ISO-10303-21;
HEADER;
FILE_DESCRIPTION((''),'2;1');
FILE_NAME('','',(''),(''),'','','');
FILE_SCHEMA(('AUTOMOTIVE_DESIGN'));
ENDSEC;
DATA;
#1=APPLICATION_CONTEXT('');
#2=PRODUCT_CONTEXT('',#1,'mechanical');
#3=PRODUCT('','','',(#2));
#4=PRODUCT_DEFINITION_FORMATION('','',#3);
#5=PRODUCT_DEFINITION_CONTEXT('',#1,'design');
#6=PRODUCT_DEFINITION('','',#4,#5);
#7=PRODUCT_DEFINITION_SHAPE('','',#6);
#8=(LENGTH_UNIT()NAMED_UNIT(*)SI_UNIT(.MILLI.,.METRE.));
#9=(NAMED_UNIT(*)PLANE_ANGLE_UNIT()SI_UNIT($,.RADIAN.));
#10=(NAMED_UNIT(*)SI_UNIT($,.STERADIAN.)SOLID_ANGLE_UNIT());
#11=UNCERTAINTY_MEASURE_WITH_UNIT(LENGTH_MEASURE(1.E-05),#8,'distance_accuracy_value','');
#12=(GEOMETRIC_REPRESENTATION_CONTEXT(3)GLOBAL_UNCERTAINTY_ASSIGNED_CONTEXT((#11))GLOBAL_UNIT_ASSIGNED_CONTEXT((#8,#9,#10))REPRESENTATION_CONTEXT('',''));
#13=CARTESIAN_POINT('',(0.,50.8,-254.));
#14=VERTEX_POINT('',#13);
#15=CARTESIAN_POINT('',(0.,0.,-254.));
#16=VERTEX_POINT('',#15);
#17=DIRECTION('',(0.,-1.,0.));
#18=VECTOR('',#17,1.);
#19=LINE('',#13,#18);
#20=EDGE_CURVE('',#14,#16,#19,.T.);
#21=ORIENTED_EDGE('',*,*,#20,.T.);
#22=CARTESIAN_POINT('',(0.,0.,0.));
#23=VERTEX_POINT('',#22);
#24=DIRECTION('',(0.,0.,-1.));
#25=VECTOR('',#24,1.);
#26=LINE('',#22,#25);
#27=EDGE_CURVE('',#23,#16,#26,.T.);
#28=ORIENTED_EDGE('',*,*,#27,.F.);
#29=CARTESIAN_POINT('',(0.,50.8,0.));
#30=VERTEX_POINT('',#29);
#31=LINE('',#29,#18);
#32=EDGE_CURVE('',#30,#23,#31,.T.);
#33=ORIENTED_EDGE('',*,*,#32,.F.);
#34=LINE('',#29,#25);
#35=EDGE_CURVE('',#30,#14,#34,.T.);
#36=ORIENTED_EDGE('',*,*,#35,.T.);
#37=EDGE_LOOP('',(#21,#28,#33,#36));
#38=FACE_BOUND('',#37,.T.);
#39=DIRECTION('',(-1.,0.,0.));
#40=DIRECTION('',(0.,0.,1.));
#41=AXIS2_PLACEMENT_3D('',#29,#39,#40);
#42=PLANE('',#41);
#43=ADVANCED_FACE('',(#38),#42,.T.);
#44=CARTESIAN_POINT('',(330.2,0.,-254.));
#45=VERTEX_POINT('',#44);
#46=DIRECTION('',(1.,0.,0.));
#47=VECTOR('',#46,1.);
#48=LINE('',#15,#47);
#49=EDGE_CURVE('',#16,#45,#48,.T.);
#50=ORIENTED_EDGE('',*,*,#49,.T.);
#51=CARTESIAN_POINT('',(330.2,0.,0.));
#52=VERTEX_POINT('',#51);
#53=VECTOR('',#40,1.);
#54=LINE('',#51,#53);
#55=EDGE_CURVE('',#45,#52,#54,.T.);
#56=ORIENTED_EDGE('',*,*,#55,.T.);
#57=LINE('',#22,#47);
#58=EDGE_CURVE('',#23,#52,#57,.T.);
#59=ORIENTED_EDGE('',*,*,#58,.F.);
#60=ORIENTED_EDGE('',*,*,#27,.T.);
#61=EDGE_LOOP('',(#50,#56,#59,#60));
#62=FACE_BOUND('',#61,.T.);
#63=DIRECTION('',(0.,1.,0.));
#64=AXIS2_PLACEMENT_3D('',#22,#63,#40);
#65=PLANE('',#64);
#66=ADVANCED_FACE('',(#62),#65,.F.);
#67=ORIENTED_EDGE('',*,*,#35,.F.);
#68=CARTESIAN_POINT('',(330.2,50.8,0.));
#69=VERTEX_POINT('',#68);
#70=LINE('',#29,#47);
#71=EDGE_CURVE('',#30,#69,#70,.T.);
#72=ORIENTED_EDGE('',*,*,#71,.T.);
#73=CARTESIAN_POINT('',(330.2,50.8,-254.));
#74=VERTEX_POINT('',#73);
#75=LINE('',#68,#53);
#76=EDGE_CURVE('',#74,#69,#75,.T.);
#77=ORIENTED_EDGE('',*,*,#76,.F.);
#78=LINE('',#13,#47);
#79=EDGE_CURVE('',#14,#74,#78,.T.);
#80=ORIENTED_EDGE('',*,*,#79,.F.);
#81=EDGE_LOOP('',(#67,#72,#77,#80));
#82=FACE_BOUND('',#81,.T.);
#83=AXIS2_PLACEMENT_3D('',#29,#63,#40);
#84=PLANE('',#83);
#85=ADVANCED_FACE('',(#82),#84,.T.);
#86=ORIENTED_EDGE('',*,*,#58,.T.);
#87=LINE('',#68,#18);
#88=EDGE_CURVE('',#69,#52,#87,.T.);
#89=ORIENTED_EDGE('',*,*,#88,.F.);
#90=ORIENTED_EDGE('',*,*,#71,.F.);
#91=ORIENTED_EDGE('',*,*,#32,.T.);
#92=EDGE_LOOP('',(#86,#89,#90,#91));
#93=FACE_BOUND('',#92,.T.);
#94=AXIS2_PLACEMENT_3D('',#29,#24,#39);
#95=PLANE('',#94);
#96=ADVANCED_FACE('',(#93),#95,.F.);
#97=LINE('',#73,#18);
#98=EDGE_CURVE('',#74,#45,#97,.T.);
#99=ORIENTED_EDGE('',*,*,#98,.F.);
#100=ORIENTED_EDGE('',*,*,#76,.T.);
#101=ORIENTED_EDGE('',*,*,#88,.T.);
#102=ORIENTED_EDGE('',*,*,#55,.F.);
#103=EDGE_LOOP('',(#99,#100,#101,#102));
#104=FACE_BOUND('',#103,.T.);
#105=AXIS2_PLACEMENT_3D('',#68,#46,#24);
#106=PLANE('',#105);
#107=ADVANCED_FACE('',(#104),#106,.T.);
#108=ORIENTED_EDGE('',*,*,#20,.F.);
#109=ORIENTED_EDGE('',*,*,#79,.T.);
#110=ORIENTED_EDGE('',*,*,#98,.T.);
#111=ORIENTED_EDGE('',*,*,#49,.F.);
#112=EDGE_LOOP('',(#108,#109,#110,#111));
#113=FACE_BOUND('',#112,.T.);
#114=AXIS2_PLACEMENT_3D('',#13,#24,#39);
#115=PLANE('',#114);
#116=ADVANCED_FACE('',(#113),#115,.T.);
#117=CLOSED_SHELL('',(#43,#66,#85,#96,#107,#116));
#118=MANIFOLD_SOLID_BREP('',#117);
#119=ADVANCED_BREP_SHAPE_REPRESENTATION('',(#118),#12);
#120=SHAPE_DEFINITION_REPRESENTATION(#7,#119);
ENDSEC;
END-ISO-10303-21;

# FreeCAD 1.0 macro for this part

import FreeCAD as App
import Part
import Sketcher
from FreeCAD import Vector
Q = App.Units.Quantity

doc = App.newDocument("Part")
body = doc.addObject("PartDesign::Body", "Body")

sketch1 = body.newObject("Sketcher::SketchObject", "Sketch")
sketch1.AttachmentSupport = (doc.getObject("XZ_Plane"), [""])
sketch1.MapMode = "FlatFace"
sketch1.addGeometry([
    Part.LineSegment(Vector(0, 0, 0), Vector(330, 0, 0)),
    Part.LineSegment(Vector(330, 0, 0), Vector(330, -254, 0)),
    Part.LineSegment(Vector(330, -254, 0), Vector(0, -254, 0)),
    Part.LineSegment(Vector(0, -254, 0), Vector(0, 0, 0)),
], False)
sketch1.addConstraint([
    Sketcher.Constraint("Coincident", 0, 2, 1, 1),
    Sketcher.Constraint("Coincident", 1, 2, 2, 1),
    Sketcher.Constraint("Coincident", 2, 2, 3, 1),
    Sketcher.Constraint("Coincident", 3, 2, 0, 1),
    Sketcher.Constraint("Horizontal", 0),
    Sketcher.Constraint("Vertical", 1),
    Sketcher.Constraint("Horizontal", 2),
    Sketcher.Constraint("Vertical", 3),
    Sketcher.Constraint("Coincident", 3, 2, -1, 1),
    Sketcher.Constraint("DistanceX", 0, 1, 0, 2, Q("13 in")),
    Sketcher.Constraint("DistanceY", 1, 2, 1, 1, Q("10 in")),
])
pad1 = body.newObject("PartDesign::Pad", "Pad")
pad1.Profile = sketch1
pad1.Length = Q("2 in")
pad1.Reversed = True

doc.recompute()
